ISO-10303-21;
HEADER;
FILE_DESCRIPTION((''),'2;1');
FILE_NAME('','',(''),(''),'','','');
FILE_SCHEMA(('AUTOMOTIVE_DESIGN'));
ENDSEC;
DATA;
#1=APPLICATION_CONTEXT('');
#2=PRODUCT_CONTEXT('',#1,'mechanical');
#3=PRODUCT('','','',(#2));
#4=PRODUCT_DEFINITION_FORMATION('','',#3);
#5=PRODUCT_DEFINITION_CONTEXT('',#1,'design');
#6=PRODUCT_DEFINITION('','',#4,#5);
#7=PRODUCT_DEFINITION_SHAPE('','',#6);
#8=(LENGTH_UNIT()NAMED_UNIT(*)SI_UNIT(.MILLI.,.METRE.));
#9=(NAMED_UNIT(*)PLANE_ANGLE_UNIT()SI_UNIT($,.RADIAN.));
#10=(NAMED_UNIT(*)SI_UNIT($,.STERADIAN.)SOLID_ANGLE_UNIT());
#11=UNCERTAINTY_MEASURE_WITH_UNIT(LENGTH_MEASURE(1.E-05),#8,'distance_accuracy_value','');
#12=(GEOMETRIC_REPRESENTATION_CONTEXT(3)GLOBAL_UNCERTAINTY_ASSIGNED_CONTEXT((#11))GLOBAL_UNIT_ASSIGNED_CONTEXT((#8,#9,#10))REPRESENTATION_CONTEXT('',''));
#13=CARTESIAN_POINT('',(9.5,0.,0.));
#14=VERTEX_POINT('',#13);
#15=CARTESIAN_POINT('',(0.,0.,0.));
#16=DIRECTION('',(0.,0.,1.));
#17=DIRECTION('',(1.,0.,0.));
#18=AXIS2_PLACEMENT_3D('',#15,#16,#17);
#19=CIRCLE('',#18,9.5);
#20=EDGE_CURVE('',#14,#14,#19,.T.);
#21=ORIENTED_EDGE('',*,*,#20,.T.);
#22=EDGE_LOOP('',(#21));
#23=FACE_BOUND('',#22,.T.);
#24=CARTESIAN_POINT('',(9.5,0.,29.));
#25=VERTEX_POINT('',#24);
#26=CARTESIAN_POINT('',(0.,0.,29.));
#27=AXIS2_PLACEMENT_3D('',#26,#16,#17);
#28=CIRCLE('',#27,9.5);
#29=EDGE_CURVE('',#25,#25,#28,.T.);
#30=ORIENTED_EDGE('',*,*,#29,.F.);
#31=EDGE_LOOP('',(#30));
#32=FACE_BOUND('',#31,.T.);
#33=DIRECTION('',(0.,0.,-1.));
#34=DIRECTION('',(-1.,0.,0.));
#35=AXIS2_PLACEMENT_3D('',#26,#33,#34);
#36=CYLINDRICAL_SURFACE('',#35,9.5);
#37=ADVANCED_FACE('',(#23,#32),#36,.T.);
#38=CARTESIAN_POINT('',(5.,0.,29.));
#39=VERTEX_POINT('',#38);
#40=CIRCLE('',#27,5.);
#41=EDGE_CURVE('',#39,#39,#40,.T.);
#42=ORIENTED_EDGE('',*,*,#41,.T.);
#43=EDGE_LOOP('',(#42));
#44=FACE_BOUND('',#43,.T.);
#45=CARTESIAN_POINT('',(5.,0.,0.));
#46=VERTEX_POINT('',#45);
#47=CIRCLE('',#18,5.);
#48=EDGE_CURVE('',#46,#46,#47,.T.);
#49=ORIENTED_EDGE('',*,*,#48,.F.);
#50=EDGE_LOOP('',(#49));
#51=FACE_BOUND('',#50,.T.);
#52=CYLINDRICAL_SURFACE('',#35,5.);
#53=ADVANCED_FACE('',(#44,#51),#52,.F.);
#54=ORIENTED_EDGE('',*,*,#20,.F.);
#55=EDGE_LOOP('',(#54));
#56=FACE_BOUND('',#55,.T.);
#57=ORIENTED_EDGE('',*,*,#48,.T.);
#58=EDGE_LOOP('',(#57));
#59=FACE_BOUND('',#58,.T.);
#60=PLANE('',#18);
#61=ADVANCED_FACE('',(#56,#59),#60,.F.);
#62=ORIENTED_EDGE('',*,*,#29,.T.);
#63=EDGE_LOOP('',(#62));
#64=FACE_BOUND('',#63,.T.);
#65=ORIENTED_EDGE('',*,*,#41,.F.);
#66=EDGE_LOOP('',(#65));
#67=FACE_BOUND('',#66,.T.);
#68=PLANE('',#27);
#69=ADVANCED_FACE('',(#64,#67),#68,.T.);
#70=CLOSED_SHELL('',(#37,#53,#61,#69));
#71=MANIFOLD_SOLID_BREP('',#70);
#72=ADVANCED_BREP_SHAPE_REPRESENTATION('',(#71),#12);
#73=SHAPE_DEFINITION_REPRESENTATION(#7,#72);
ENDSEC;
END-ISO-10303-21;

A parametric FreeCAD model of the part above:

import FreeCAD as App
import Part
import Sketcher
from FreeCAD import Vector

doc = App.newDocument("Part")
params = doc.addObject("Spreadsheet::Sheet", "Params")
for row, (alias, value) in enumerate([
    ("sketch1_diameter", "19 mm"),
    ("sketch1_diameter2", "10 mm"),
    ("pad1_length", "29 mm"),
], start=1):
    params.set(f"A{row}", alias)
    params.set(f"B{row}", "=" + value)
    params.setAlias(f"B{row}", alias)

body = doc.addObject("PartDesign::Body", "Body")

# Sketch on XY plane
sketch1 = body.newObject("Sketcher::SketchObject", "Sketch")
sketch1.AttachmentSupport = (doc.getObject("XY_Plane"), [""])
sketch1.MapMode = "FlatFace"
sketch1.addGeometry(Part.Circle(Vector(0, 0, 0), Vector(0, 0, 1), 10), False)
sketch1.addGeometry(Part.Circle(Vector(0, 0, 0), Vector(0, 0, 1), 5), False)
sketch1.addConstraint(Sketcher.Constraint("Coincident", 0, 3, -1, 1))
sketch1.addConstraint(Sketcher.Constraint("Coincident", 1, 3, -1, 1))
sketch1.addConstraint(Sketcher.Constraint("Diameter", 0, 19.0))
sketch1.addConstraint(Sketcher.Constraint("Diameter", 1, 10.0))
sketch1.setExpression("Constraints[2]", "Params.sketch1_diameter")
sketch1.setExpression("Constraints[3]", "Params.sketch1_diameter2")
pad1 = body.newObject("PartDesign::Pad", "Pad")
pad1.Profile = sketch1
pad1.setExpression("Length", "Params.pad1_length")

doc.recompute()
